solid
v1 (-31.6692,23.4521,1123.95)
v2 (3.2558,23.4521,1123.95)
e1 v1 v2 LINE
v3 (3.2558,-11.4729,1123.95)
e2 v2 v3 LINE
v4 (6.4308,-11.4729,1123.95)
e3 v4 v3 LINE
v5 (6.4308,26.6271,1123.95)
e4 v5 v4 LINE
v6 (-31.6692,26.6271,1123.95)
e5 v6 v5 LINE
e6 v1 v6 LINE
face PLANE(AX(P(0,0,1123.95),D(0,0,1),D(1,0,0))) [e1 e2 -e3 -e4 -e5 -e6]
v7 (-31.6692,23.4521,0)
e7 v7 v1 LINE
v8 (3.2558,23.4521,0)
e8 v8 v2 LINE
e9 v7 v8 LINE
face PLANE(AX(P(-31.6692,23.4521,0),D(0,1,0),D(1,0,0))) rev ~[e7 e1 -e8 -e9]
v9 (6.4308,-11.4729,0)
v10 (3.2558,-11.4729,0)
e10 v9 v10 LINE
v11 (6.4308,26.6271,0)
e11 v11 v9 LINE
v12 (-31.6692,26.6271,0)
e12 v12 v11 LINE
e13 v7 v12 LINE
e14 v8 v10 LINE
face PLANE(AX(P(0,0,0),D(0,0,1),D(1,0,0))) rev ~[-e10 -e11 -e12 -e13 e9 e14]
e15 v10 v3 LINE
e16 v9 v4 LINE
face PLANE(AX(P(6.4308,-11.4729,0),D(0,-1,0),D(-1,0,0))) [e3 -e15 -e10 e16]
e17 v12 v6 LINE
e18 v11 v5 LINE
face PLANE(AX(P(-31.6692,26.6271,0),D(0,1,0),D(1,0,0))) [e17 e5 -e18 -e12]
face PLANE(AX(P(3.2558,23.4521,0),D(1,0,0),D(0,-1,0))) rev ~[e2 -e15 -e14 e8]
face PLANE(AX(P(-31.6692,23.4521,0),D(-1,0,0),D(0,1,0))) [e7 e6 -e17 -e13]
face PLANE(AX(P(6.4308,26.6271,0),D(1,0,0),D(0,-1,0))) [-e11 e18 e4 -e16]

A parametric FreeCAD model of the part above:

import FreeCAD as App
import Part
import Sketcher
from FreeCAD import Vector
Q = App.Units.Quantity


def add_polygon(sketch, points):
    """Adds a closed chain of lines whose ends are joined by coincident constraints."""
    first, n = sketch.GeometryCount, len(points)
    for a, b in zip(points, points[1:] + points[:1]):
        sketch.addGeometry(Part.LineSegment(App.Vector(*a, 0), App.Vector(*b, 0)), False)
    for i in range(n):
        sketch.addConstraint(Sketcher.Constraint("Coincident", first + i, 2, first + (i + 1) % n, 1))

doc = App.newDocument("Part")
params = doc.addObject("Spreadsheet::Sheet", "Params")
for row, (alias, value) in enumerate([
    ("sketch1_width", "1.5 in"),
    ("sketch1_width2", "0.125 in"),
    ("pad1_length", "44.25 in"),
], start=1):
    params.set(f"A{row}", alias)
    params.set(f"B{row}", "=" + value)
    params.setAlias(f"B{row}", alias)

body = doc.addObject("PartDesign::Body", "Body")

# Sketch on XY plane
sketch1 = doc.addObject("Sketcher::SketchObject", "Sketch")
body.addObject(sketch1)
sketch1.AttachmentSupport = (doc.XY_Plane, [""])
sketch1.MapMode = "FlatFace"
add_polygon(sketch1, [(6.4, 26.6), (-31.7, 26.6), (-31.7, 23.5), (3.3, 23.5), (3.3, -11.5), (6.4, -11.5)])  # lines 0-5
sketch1.addConstraint([
    Sketcher.Constraint("Horizontal", 0),
    Sketcher.Constraint("Vertical", 1),
    Sketcher.Constraint("Horizontal", 2),
    Sketcher.Constraint("Vertical", 3),
    Sketcher.Constraint("Horizontal", 4),
    Sketcher.Constraint("Vertical", 5),
    Sketcher.Constraint("Equal", 4, 1),
    Sketcher.Constraint("Equal", 2, 3),
    Sketcher.Constraint("DistanceX", 0, 2, 0, 1, Q("1.5 in")),
    Sketcher.Constraint("DistanceX", 4, 1, 4, 2, Q("0.125 in")),
    Sketcher.Constraint("DistanceY", -1, 1, 0, 2, Q("1.0483 in")),
    Sketcher.Constraint("DistanceX", 0, 2, -1, 1, 31.6692),
])
sketch1.setExpression("Constraints[14]", "Params.sketch1_width")
sketch1.setExpression("Constraints[15]", "Params.sketch1_width2")
pad1 = doc.addObject("PartDesign::Pad", "Pad")
body.addObject(pad1)
pad1.Profile = sketch1
pad1.setExpression("Length", "Params.pad1_length")

doc.recompute()
